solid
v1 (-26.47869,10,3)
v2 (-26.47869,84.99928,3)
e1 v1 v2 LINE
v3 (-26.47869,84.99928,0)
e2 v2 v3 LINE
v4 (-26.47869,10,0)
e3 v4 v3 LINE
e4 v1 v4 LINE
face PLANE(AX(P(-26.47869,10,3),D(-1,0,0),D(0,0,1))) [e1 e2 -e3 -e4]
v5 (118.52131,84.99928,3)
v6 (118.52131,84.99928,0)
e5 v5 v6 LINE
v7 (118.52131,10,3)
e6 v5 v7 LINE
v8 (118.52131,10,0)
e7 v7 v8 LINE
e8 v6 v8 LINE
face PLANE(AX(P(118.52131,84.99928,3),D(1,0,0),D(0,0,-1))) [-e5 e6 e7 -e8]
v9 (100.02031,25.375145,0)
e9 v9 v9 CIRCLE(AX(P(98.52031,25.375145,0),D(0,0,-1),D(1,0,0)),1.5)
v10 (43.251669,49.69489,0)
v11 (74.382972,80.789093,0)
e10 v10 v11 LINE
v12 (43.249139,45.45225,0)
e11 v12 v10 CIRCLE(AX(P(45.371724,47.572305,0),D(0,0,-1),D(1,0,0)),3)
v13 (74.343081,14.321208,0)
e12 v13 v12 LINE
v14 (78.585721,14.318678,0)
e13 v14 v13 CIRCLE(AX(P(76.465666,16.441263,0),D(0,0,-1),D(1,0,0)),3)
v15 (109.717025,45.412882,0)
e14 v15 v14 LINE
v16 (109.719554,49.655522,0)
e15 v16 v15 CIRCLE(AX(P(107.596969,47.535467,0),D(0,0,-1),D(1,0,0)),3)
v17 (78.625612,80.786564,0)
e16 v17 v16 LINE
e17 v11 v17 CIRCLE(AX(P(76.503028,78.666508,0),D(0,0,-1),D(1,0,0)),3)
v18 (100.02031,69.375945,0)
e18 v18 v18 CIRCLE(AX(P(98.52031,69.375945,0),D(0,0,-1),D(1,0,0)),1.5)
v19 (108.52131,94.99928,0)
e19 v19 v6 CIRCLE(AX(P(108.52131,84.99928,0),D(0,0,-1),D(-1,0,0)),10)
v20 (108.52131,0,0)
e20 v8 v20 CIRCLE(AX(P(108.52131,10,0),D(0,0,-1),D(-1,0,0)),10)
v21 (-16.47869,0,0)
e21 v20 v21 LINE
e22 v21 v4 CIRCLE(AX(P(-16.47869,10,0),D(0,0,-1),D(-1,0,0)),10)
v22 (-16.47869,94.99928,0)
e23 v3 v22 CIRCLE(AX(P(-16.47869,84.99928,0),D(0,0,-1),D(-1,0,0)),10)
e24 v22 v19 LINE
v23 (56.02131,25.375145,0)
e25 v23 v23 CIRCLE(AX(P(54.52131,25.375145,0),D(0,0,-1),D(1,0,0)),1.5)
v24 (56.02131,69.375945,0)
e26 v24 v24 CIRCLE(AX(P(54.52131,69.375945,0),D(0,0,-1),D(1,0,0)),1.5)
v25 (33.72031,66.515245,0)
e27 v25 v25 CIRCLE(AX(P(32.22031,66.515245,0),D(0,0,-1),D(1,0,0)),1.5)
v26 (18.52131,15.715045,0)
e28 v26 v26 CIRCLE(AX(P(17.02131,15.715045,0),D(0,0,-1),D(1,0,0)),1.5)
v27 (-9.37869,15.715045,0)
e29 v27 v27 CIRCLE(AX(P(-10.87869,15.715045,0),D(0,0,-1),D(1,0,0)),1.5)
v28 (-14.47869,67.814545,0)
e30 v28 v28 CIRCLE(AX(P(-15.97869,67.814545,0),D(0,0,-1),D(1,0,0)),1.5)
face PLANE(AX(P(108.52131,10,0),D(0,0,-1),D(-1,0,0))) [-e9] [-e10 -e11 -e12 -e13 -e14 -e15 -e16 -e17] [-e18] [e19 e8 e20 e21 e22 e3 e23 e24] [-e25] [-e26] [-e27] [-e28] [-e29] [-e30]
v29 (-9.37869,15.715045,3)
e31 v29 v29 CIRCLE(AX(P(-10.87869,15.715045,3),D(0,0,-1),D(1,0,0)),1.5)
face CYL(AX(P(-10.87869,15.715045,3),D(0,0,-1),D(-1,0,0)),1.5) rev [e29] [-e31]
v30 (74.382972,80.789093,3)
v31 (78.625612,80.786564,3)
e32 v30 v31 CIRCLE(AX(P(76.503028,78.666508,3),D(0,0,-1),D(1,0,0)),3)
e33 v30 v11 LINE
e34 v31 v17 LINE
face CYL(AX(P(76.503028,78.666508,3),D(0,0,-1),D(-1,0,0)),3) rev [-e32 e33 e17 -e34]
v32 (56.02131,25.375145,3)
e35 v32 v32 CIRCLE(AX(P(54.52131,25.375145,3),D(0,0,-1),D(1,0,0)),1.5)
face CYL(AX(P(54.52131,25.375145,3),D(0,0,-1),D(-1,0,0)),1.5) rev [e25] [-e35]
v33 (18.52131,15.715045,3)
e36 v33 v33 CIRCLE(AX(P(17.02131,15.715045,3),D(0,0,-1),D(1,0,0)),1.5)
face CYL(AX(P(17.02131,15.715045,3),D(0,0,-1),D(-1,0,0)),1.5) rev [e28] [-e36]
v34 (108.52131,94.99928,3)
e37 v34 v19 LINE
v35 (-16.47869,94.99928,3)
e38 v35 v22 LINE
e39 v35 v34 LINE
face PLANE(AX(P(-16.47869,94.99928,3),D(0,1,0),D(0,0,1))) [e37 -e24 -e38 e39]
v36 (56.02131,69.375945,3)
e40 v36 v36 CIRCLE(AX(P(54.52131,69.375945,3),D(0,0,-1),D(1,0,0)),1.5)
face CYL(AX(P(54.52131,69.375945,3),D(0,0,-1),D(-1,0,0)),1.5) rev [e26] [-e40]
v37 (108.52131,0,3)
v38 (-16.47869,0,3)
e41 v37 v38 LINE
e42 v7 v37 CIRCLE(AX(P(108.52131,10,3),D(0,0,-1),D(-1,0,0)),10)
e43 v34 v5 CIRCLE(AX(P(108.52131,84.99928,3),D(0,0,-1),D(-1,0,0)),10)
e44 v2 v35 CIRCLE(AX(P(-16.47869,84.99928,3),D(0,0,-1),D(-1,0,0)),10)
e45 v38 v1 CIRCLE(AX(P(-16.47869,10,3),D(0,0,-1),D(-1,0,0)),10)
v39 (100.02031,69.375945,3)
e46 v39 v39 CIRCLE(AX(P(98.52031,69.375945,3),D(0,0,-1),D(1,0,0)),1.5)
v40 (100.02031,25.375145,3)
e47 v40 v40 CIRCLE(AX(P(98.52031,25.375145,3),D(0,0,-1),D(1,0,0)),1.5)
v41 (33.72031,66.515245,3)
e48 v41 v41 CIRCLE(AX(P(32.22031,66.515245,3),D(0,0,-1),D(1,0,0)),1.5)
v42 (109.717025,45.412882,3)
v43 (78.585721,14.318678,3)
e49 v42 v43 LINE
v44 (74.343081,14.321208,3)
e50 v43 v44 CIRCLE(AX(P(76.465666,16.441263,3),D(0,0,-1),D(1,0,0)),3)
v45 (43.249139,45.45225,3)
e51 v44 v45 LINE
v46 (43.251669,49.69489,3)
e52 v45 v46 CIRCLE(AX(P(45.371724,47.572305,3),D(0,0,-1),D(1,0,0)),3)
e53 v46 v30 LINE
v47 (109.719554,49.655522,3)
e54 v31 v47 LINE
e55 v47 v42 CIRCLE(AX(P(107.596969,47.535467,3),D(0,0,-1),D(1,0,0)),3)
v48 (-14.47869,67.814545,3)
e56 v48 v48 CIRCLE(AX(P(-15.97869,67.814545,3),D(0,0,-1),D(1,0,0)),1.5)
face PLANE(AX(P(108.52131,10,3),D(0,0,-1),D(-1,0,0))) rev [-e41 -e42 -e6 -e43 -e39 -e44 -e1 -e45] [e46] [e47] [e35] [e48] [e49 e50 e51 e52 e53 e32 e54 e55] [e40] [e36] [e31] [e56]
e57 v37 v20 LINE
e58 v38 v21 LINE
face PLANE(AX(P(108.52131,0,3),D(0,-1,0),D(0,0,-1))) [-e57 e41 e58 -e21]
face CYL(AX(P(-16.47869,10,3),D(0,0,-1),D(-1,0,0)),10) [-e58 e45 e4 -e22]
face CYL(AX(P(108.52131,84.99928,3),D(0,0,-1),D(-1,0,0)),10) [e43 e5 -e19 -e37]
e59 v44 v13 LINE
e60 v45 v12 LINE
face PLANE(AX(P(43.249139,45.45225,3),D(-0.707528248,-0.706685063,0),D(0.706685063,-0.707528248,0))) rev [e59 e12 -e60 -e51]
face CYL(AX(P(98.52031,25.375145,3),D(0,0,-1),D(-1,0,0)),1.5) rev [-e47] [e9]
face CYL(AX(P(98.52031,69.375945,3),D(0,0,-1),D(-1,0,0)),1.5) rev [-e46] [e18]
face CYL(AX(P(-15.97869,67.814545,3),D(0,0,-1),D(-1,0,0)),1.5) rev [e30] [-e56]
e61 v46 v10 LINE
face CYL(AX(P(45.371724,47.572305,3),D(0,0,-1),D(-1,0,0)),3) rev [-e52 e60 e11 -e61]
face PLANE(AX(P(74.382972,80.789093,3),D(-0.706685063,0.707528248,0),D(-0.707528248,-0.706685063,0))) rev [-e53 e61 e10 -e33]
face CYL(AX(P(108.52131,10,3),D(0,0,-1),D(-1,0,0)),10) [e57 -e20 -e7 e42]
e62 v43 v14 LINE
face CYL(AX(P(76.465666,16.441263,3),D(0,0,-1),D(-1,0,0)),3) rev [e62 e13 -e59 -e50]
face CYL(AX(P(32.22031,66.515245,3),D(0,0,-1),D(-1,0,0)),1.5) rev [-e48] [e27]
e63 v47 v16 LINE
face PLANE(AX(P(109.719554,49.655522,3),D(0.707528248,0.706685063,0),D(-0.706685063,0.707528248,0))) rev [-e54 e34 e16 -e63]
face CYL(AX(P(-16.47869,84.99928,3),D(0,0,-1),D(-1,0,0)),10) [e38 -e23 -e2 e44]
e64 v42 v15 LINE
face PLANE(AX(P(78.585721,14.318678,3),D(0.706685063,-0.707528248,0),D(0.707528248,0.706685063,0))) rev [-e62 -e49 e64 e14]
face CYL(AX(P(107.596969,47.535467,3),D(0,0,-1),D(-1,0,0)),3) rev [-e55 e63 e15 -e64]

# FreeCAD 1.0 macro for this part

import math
import FreeCAD as App
import Part
import Sketcher

V = App.Vector
Q = App.Units.Quantity

doc = App.newDocument("Part")
params = doc.addObject("Spreadsheet::Sheet", "Params")
for row, (alias, value) in enumerate([
    ("sketch1_diameter", "3 mm"),
    ("sketch1_radius", "10 mm"),
    ("sketch1_radius2", "3 mm"),
    ("sketch1_width", "125 mm"),
    ("pad1_length", "3 mm"),
], start=1):
    params.set(f"A{row}", alias)
    params.set(f"B{row}", "=" + value)
    params.setAlias(f"B{row}", alias)

body = doc.addObject("PartDesign::Body", "Body")

# Sketch on XY plane
sketch1 = doc.addObject("Sketcher::SketchObject", "Sketch")
body.addObject(sketch1)
sketch1.AttachmentSupport = (doc.XY_Plane, [""])
sketch1.MapMode = "FlatFace"
sketch1.addGeometry(Part.LineSegment(V(108.52131, 0, 0), V(-16.47869, 0, 0)), False)
sketch1.addGeometry(Part.ArcOfCircle(Part.Circle(V(-16.47869, 10, 0), V(0, 0, 1), 10), math.radians(-180), math.radians(-90)), False)
sketch1.addGeometry(Part.LineSegment(V(-26.47869, 10, 0), V(-26.47869, 84.99928, 0)), False)
sketch1.addGeometry(Part.ArcOfCircle(Part.Circle(V(-16.47869, 84.99928, 0), V(0, 0, 1), 10), math.radians(90), math.radians(180)), False)
sketch1.addGeometry(Part.LineSegment(V(-16.47869, 94.99928, 0), V(108.52131, 94.99928, 0)), False)
sketch1.addGeometry(Part.ArcOfCircle(Part.Circle(V(108.52131, 84.99928, 0), V(0, 0, 1), 10), math.radians(0), math.radians(90)), False)
sketch1.addGeometry(Part.LineSegment(V(118.52131, 84.99928, 0), V(118.52131, 10, 0)), False)
sketch1.addGeometry(Part.ArcOfCircle(Part.Circle(V(108.52131, 10, 0), V(0, 0, 1), 10), math.radians(-90), math.radians(0)), False)
sketch1.addGeometry(Part.Circle(V(98.52031, 25.375145, 0), V(0, 0, 1), 1.5), False)
sketch1.addGeometry(Part.Circle(V(54.52131, 25.375145, 0), V(0, 0, 1), 1.5), False)
sketch1.addGeometry(Part.Circle(V(17.02131, 15.715045, 0), V(0, 0, 1), 1.5), False)
sketch1.addGeometry(Part.Circle(V(-10.87869, 15.715045, 0), V(0, 0, 1), 1.5), False)
sketch1.addGeometry(Part.ArcOfCircle(Part.Circle(V(107.596969, 47.535467, 0), V(0, 0, 1), 3), math.radians(-45.034161), math.radians(44.965839)), False)
sketch1.addGeometry(Part.LineSegment(V(109.719554, 49.655522, 0), V(78.625612, 80.786564, 0)), False)
sketch1.addGeometry(Part.ArcOfCircle(Part.Circle(V(76.503028, 78.666508, 0), V(0, 0, 1), 3), math.radians(44.965839), math.radians(134.965839)), False)
sketch1.addGeometry(Part.LineSegment(V(74.382972, 80.789093, 0), V(43.251669, 49.69489, 0)), False)
sketch1.addGeometry(Part.ArcOfCircle(Part.Circle(V(45.371724, 47.572305, 0), V(0, 0, 1), 3), math.radians(134.965839), math.radians(224.965839)), False)
sketch1.addGeometry(Part.LineSegment(V(43.249139, 45.45225, 0), V(74.343081, 14.321208, 0)), False)
sketch1.addGeometry(Part.ArcOfCircle(Part.Circle(V(76.465666, 16.441263, 0), V(0, 0, 1), 3), math.radians(-135.034161), math.radians(-45.034161)), False)
sketch1.addGeometry(Part.LineSegment(V(78.585721, 14.318678, 0), V(109.717025, 45.412882, 0)), False)
sketch1.addGeometry(Part.Circle(V(98.52031, 69.375945, 0), V(0, 0, 1), 1.5), False)
sketch1.addGeometry(Part.Circle(V(54.52131, 69.375945, 0), V(0, 0, 1), 1.5), False)
sketch1.addGeometry(Part.Circle(V(32.22031, 66.515245, 0), V(0, 0, 1), 1.5), False)
sketch1.addGeometry(Part.Circle(V(-15.97869, 67.814545, 0), V(0, 0, 1), 1.5), False)
sketch1.addConstraint(Sketcher.Constraint("Tangent", 0, 2, 1, 2))
sketch1.addConstraint(Sketcher.Constraint("Tangent", 1, 1, 2, 1))
sketch1.addConstraint(Sketcher.Constraint("Tangent", 2, 2, 3, 2))
sketch1.addConstraint(Sketcher.Constraint("Tangent", 3, 1, 4, 1))
sketch1.addConstraint(Sketcher.Constraint("Tangent", 4, 2, 5, 2))
sketch1.addConstraint(Sketcher.Constraint("Tangent", 5, 1, 6, 1))
sketch1.addConstraint(Sketcher.Constraint("Tangent", 6, 2, 7, 2))
sketch1.addConstraint(Sketcher.Constraint("Tangent", 7, 1, 0, 1))
sketch1.addConstraint(Sketcher.Constraint("Tangent", 12, 2, 13, 1))
sketch1.addConstraint(Sketcher.Constraint("Tangent", 13, 2, 14, 1))
sketch1.addConstraint(Sketcher.Constraint("Tangent", 14, 2, 15, 1))
sketch1.addConstraint(Sketcher.Constraint("Tangent", 15, 2, 16, 1))
sketch1.addConstraint(Sketcher.Constraint("Tangent", 16, 2, 17, 1))
sketch1.addConstraint(Sketcher.Constraint("Tangent", 17, 2, 18, 1))
sketch1.addConstraint(Sketcher.Constraint("Tangent", 18, 2, 19, 1))
sketch1.addConstraint(Sketcher.Constraint("Tangent", 19, 2, 12, 1))
sketch1.addConstraint(Sketcher.Constraint("Horizontal", 0))
sketch1.addConstraint(Sketcher.Constraint("Vertical", 2))
sketch1.addConstraint(Sketcher.Constraint("Horizontal", 4))
sketch1.addConstraint(Sketcher.Constraint("Vertical", 6))
sketch1.addConstraint(Sketcher.Constraint("Equal", 1, 3))
sketch1.addConstraint(Sketcher.Constraint("Equal", 3, 5))
sketch1.addConstraint(Sketcher.Constraint("Equal", 5, 7))
sketch1.addConstraint(Sketcher.Constraint("Equal", 8, 9))
sketch1.addConstraint(Sketcher.Constraint("Equal", 9, 10))
sketch1.addConstraint(Sketcher.Constraint("Equal", 10, 11))
sketch1.addConstraint(Sketcher.Constraint("Equal", 12, 14))
sketch1.addConstraint(Sketcher.Constraint("Equal", 14, 16))
sketch1.addConstraint(Sketcher.Constraint("Equal", 16, 18))
sketch1.addConstraint(Sketcher.Constraint("Equal", 11, 20))
sketch1.addConstraint(Sketcher.Constraint("Equal", 20, 21))
sketch1.addConstraint(Sketcher.Constraint("Equal", 21, 22))
sketch1.addConstraint(Sketcher.Constraint("Equal", 22, 23))
sketch1.addConstraint(Sketcher.Constraint("PointOnObject", 0, 2, -1))
sketch1.addConstraint(Sketcher.Constraint("Perpendicular", 13, 15))
sketch1.addConstraint(Sketcher.Constraint("Perpendicular", 15, 17))
sketch1.addConstraint(Sketcher.Constraint("Perpendicular", 17, 19))
sketch1.addConstraint(Sketcher.Constraint("Horizontal", 8, 3, 9, 3))
sketch1.addConstraint(Sketcher.Constraint("Horizontal", 10, 3, 11, 3))
sketch1.addConstraint(Sketcher.Constraint("Horizontal", 20, 3, 21, 3))
sketch1.addConstraint(Sketcher.Constraint("Vertical", 8, 3, 20, 3))
sketch1.addConstraint(Sketcher.Constraint("Vertical", 9, 3, 21, 3))
sketch1.addConstraint(Sketcher.Constraint("Diameter", 8, Q("3 mm")))
sketch1.addConstraint(Sketcher.Constraint("Radius", 1, Q("10 mm")))
sketch1.addConstraint(Sketcher.Constraint("Radius", 12, Q("3 mm")))
sketch1.addConstraint(Sketcher.Constraint("DistanceX", 0, 2, 0, 1, Q("125 mm")))
sketch1.addConstraint(Sketcher.Constraint("DistanceX", 9, 3, 7, 3, Q("54 mm")))
sketch1.addConstraint(Sketcher.Constraint("DistanceX", 23, 3, 10, 3, Q("33 mm")))
sketch1.addConstraint(Sketcher.Constraint("DistanceX", 1, 3, 10, 3, Q("33.5 mm")))
sketch1.addConstraint(Sketcher.Constraint("DistanceX", 1, 3, 11, 3, Q("5.6 mm")))
sketch1.addConstraint(Sketcher.Constraint("DistanceX", 8, 3, 7, 3, Q("10.001 mm")))
sketch1.addConstraint(Sketcher.Constraint("DistanceX", 22, 3, 21, 3, Q("22.301 mm")))
sketch1.addConstraint(Sketcher.Constraint("DistanceY", 2, 1, 2, 2, Q("74.99928 mm")))
sketch1.addConstraint(Sketcher.Constraint("DistanceY", 10, 3, 9, 3, Q("9.6601 mm")))
sketch1.addConstraint(Sketcher.Constraint("DistanceY", 8, 3, 20, 3, Q("44.0008 mm")))
sketch1.addConstraint(Sketcher.Constraint("DistanceY", 22, 3, 21, 3, Q("2.8607 mm")))
sketch1.addConstraint(Sketcher.Constraint("DistanceY", 22, 3, 23, 3, Q("1.2993 mm")))
sketch1.addConstraint(Sketcher.Constraint("DistanceX", 1, 3, -1, 1, Q("16.47869 mm")))
sketch1.addConstraint(Sketcher.Constraint("DistanceX", -1, 1, 12, 3, Q("107.596969 mm")))
sketch1.addConstraint(Sketcher.Constraint("DistanceY", -1, 1, 14, 3, Q("78.666508 mm")))
sketch1.addConstraint(Sketcher.Constraint("DistanceY", -1, 1, 12, 2, Q("49.655522 mm")))
sketch1.addConstraint(Sketcher.Constraint("DistanceX", -1, 1, 15, 2, Q("43.251669 mm")))
sketch1.addConstraint(Sketcher.Constraint("DistanceY", -1, 1, 15, 2, Q("49.69489 mm")))
sketch1.addConstraint(Sketcher.Constraint("DistanceY", 8, 3, 12, 3, Q("22.160321 mm")))
sketch1.setExpression("Constraints[42]", "Params.sketch1_diameter")
sketch1.setExpression("Constraints[43]", "Params.sketch1_radius")
sketch1.setExpression("Constraints[44]", "Params.sketch1_radius2")
sketch1.setExpression("Constraints[45]", "Params.sketch1_width")
pad1 = doc.addObject("PartDesign::Pad", "Pad")
body.addObject(pad1)
pad1.Profile = sketch1
pad1.setExpression("Length", "Params.pad1_length")

doc.recompute()
